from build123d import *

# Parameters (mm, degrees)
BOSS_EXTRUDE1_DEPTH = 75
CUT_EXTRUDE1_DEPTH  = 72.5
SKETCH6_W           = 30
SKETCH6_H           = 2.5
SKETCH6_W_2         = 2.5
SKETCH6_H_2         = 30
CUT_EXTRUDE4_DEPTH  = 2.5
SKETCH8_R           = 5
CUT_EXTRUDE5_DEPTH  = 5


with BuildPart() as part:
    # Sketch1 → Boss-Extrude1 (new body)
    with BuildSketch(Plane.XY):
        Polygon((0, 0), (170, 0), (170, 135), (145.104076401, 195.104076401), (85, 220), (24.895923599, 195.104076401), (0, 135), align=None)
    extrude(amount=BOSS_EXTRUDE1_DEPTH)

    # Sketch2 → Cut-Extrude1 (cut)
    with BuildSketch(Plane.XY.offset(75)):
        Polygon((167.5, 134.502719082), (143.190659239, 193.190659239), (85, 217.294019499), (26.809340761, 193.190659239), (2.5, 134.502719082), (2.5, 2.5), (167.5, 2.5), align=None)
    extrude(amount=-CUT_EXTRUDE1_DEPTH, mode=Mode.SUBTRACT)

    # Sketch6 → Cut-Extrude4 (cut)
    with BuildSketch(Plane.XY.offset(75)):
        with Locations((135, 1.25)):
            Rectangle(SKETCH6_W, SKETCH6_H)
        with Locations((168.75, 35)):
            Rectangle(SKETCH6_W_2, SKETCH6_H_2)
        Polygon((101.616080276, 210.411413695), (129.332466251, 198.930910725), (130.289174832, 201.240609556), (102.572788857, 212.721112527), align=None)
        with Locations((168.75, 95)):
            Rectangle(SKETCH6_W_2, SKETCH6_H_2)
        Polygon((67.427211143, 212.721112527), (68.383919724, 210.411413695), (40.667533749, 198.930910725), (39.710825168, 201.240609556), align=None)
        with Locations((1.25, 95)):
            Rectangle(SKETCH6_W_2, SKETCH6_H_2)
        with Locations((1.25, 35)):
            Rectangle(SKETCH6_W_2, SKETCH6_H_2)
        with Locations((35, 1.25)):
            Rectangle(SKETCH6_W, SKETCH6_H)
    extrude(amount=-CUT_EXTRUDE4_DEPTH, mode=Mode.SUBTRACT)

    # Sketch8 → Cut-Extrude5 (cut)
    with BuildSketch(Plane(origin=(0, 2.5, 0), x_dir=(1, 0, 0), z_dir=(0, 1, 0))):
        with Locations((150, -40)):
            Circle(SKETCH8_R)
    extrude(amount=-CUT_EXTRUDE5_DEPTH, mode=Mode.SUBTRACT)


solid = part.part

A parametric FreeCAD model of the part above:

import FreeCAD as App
import Part
import Sketcher
from FreeCAD import Vector
Q = App.Units.Quantity


def add_polygon(sketch, points):
    """Adds a closed chain of lines whose ends are joined by coincident constraints."""
    first, n = sketch.GeometryCount, len(points)
    for a, b in zip(points, points[1:] + points[:1]):
        sketch.addGeometry(Part.LineSegment(App.Vector(*a, 0), App.Vector(*b, 0)), False)
    for i in range(n):
        sketch.addConstraint(Sketcher.Constraint("Coincident", first + i, 2, first + (i + 1) % n, 1))

doc = App.newDocument("Part")
body = doc.addObject("PartDesign::Body", "Body")

sketch1 = body.newObject("Sketcher::SketchObject", "Sketch")
sketch1.AttachmentSupport = (doc.getObject("XY_Plane"), [""])
sketch1.MapMode = "FlatFace"
add_polygon(sketch1, [(0, 0), (170, 0), (170, 135), (145, 195), (85, 220), (25, 195), (0, 135)])
sketch1.addConstraint(Sketcher.Constraint("Horizontal", 0))
sketch1.addConstraint(Sketcher.Constraint("Vertical", 1))
sketch1.addConstraint(Sketcher.Constraint("Vertical", 6))
sketch1.addConstraint(Sketcher.Constraint("Coincident", 6, 2, -1, 1))
sketch1.addConstraint(Sketcher.Constraint("Perpendicular", 2, 4))
sketch1.addConstraint(Sketcher.Constraint("Perpendicular", 3, 5))
sketch1.addConstraint(Sketcher.Constraint("Horizontal", 2, 2, 4, 2))
sketch1.addConstraint(Sketcher.Constraint("Horizontal", 1, 2, 5, 2))
sketch1.addConstraint(Sketcher.Constraint("Equal", 2, 3))
sketch1.addConstraint(Sketcher.Constraint("Equal", 3, 4))
sketch1.addConstraint(Sketcher.Constraint("DistanceX", 0, 1, 0, 2, 170.0))
sketch1.addConstraint(Sketcher.Constraint("DistanceY", 1, 1, 1, 2, 135.0))
sketch1.addConstraint(Sketcher.Constraint("Angle", 2, Q("112.5 deg")))
pad1 = body.newObject("PartDesign::Pad", "Pad")
pad1.Profile = sketch1
pad1.Length = 75

sketch2 = body.newObject("Sketcher::SketchObject", "Sketch001")
sketch2.AttachmentSupport = (doc.getObject("XY_Plane"), [""])
sketch2.MapMode = "FlatFace"
sketch2.AttachmentOffset = App.Placement(Vector(0, 0, 75), App.Rotation())
add_polygon(sketch2, [(168, 135), (143, 193), (85, 217), (27, 193), (2, 135), (2, 2), (168, 2)])
sketch2.addConstraint(Sketcher.Constraint("Vertical", 4))
sketch2.addConstraint(Sketcher.Constraint("Horizontal", 5))
sketch2.addConstraint(Sketcher.Constraint("Vertical", 6))
sketch2.addConstraint(Sketcher.Constraint("Perpendicular", 0, 2))
sketch2.addConstraint(Sketcher.Constraint("Perpendicular", 1, 3))
sketch2.addConstraint(Sketcher.Constraint("Horizontal", 0, 2, 2, 2))
sketch2.addConstraint(Sketcher.Constraint("Horizontal", 3, 2, 6, 2))
sketch2.addConstraint(Sketcher.Constraint("Equal", 1, 2))
sketch2.addConstraint(Sketcher.Constraint("DistanceX", 5, 1, 5, 2, 165.0))
sketch2.addConstraint(Sketcher.Constraint("DistanceX", -1, 1, 1, 2, 85.0))
sketch2.addConstraint(Sketcher.Constraint("Angle", 0, Q("112.5 deg")))
sketch2.addConstraint(Sketcher.Constraint("DistanceY", -1, 1, 4, 2, 2.5))
sketch2.addConstraint(Sketcher.Constraint("DistanceY", 4, 2, 4, 1, 132.002719))
sketch2.addConstraint(Sketcher.Constraint("DistanceY", 3, 2, 1, 2, 82.7913))
pocket1 = body.newObject("PartDesign::Pocket", "Pocket")
pocket1.Profile = sketch2
pocket1.Length = 72.5

sketch3 = body.newObject("Sketcher::SketchObject", "Sketch002")
sketch3.AttachmentSupport = (doc.getObject("XY_Plane"), [""])
sketch3.MapMode = "FlatFace"
sketch3.AttachmentOffset = App.Placement(Vector(0, 0, 75), App.Rotation())
add_polygon(sketch3, [(120, 2.5), (120, 0), (150, 0), (150, 2.5)])
add_polygon(sketch3, [(167.5, 50), (167.5, 20), (170, 20), (170, 50)])
add_polygon(sketch3, [(101.6, 210.4), (129.3, 198.9), (130.3, 201.2), (102.6, 212.7)])
add_polygon(sketch3, [(167.5, 110), (167.5, 80), (170, 80), (170, 110)])
add_polygon(sketch3, [(68.4, 210.4), (67.4, 212.7), (39.7, 201.2), (40.7, 198.9)])
add_polygon(sketch3, [(0, 110), (0, 80), (2.5, 80), (2.5, 110)])
add_polygon(sketch3, [(0, 50), (0, 20), (2.5, 20), (2.5, 50)])
add_polygon(sketch3, [(20, 2.5), (20, 0), (50, 0), (50, 2.5)])
sketch3.addConstraint(Sketcher.Constraint("Vertical", 0))
sketch3.addConstraint(Sketcher.Constraint("Horizontal", 1))
sketch3.addConstraint(Sketcher.Constraint("Vertical", 2))
sketch3.addConstraint(Sketcher.Constraint("Horizontal", 3))
sketch3.addConstraint(Sketcher.Constraint("Vertical", 4))
sketch3.addConstraint(Sketcher.Constraint("Horizontal", 5))
sketch3.addConstraint(Sketcher.Constraint("Vertical", 6))
sketch3.addConstraint(Sketcher.Constraint("Horizontal", 7))
sketch3.addConstraint(Sketcher.Constraint("Vertical", 12))
sketch3.addConstraint(Sketcher.Constraint("Horizontal", 13))
sketch3.addConstraint(Sketcher.Constraint("Vertical", 14))
sketch3.addConstraint(Sketcher.Constraint("Horizontal", 15))
sketch3.addConstraint(Sketcher.Constraint("Vertical", 20))
sketch3.addConstraint(Sketcher.Constraint("Horizontal", 21))
sketch3.addConstraint(Sketcher.Constraint("Vertical", 22))
sketch3.addConstraint(Sketcher.Constraint("Horizontal", 23))
sketch3.addConstraint(Sketcher.Constraint("Vertical", 24))
sketch3.addConstraint(Sketcher.Constraint("Horizontal", 25))
sketch3.addConstraint(Sketcher.Constraint("Vertical", 26))
sketch3.addConstraint(Sketcher.Constraint("Horizontal", 27))
sketch3.addConstraint(Sketcher.Constraint("Vertical", 28))
sketch3.addConstraint(Sketcher.Constraint("Horizontal", 29))
sketch3.addConstraint(Sketcher.Constraint("Vertical", 30))
sketch3.addConstraint(Sketcher.Constraint("Horizontal", 31))
sketch3.addConstraint(Sketcher.Constraint("PointOnObject", 0, 2, -1))
sketch3.addConstraint(Sketcher.Constraint("PointOnObject", 20, 2, -2))
sketch3.addConstraint(Sketcher.Constraint("PointOnObject", 24, 2, -2))
sketch3.addConstraint(Sketcher.Constraint("PointOnObject", 28, 2, -1))
sketch3.addConstraint(Sketcher.Constraint("Perpendicular", 8, 9))
sketch3.addConstraint(Sketcher.Constraint("Perpendicular", 9, 10))
sketch3.addConstraint(Sketcher.Constraint("Perpendicular", 10, 11))
sketch3.addConstraint(Sketcher.Constraint("Perpendicular", 16, 17))
sketch3.addConstraint(Sketcher.Constraint("Perpendicular", 17, 18))
sketch3.addConstraint(Sketcher.Constraint("Perpendicular", 18, 19))
sketch3.addConstraint(Sketcher.Constraint("Horizontal", 10, 2, 16, 2))
sketch3.addConstraint(Sketcher.Constraint("Horizontal", 9, 2, 17, 2))
sketch3.addConstraint(Sketcher.Constraint("Horizontal", 8, 2, 18, 2))
sketch3.addConstraint(Sketcher.Constraint("Horizontal", 13, 2, 20, 2))
sketch3.addConstraint(Sketcher.Constraint("Horizontal", 15, 2, 22, 2))
sketch3.addConstraint(Sketcher.Constraint("Horizontal", 5, 2, 24, 2))
sketch3.addConstraint(Sketcher.Constraint("Horizontal", 7, 2, 26, 2))
sketch3.addConstraint(Sketcher.Constraint("Horizontal", 3, 2, 30, 2))
sketch3.addConstraint(Sketcher.Constraint("Vertical", 7, 2, 12, 2))
sketch3.addConstraint(Sketcher.Constraint("Vertical", 6, 2, 13, 2))
sketch3.addConstraint(Sketcher.Constraint("Vertical", 22, 2, 25, 2))
sketch3.addConstraint(Sketcher.Constraint("Equal", 15, 21))
sketch3.addConstraint(Sketcher.Constraint("Equal", 3, 29))
sketch3.addConstraint(Sketcher.Constraint("Equal", 27, 0))
sketch3.addConstraint(Sketcher.Constraint("Equal", 31, 4))
sketch3.addConstraint(Sketcher.Constraint("Equal", 6, 12))
sketch3.addConstraint(Sketcher.Constraint("Equal", 11, 16))
sketch3.addConstraint(Sketcher.Constraint("DistanceX", 1, 1, 1, 2, 30.0))
sketch3.addConstraint(Sketcher.Constraint("Distance", 8, 30.0))
sketch3.addConstraint(Sketcher.Constraint("DistanceX", 5, 1, 5, 2, 2.5))
sketch3.addConstraint(Sketcher.Constraint("DistanceX", -1, 1, 0, 2, 120.0))
sketch3.addConstraint(Sketcher.Constraint("DistanceY", -1, 1, 4, 2, 20.0))
sketch3.addConstraint(Sketcher.Constraint("DistanceX", -1, 1, 5, 2, 170.0))
sketch3.addConstraint(Sketcher.Constraint("DistanceY", -1, 1, 12, 2, 80.0))
sketch3.addConstraint(Sketcher.Constraint("DistanceX", -1, 1, 28, 2, 20.0))
sketch3.addConstraint(Sketcher.Constraint("Angle", 8, Q("-22.5 deg")))
sketch3.addConstraint(Sketcher.Constraint("Distance", 9, 2.5))
sketch3.addConstraint(Sketcher.Constraint("DistanceY", -1, 1, 8, 2, 198.930911))
sketch3.addConstraint(Sketcher.Constraint("DistanceX", -1, 1, 10, 2, 102.572789))
sketch3.addConstraint(Sketcher.Constraint("DistanceX", -1, 1, 16, 2, 67.427211))
pocket2 = body.newObject("PartDesign::Pocket", "Pocket001")
pocket2.Profile = sketch3
pocket2.Length = 2.5

sketch4 = body.newObject("Sketcher::SketchObject", "Sketch003")
sketch4.AttachmentSupport = (doc.getObject("XZ_Plane"), [""])
sketch4.MapMode = "FlatFace"
sketch4.AttachmentOffset = App.Placement(Vector(0, 0, -2.5), App.Rotation())
sketch4.addGeometry(Part.Circle(Vector(150, 40, 0), Vector(0, 0, 1), 5), False)
sketch4.addConstraint(Sketcher.Constraint("Diameter", 0, 10.0))
sketch4.addConstraint(Sketcher.Constraint("DistanceX", -1, 1, 0, 3, 150.0))
sketch4.addConstraint(Sketcher.Constraint("DistanceY", -1, 1, 0, 3, 40.0))
pocket3 = body.newObject("PartDesign::Pocket", "Pocket002")
pocket3.Profile = sketch4
pocket3.Length = 5
pocket3.Reversed = True

doc.recompute()
